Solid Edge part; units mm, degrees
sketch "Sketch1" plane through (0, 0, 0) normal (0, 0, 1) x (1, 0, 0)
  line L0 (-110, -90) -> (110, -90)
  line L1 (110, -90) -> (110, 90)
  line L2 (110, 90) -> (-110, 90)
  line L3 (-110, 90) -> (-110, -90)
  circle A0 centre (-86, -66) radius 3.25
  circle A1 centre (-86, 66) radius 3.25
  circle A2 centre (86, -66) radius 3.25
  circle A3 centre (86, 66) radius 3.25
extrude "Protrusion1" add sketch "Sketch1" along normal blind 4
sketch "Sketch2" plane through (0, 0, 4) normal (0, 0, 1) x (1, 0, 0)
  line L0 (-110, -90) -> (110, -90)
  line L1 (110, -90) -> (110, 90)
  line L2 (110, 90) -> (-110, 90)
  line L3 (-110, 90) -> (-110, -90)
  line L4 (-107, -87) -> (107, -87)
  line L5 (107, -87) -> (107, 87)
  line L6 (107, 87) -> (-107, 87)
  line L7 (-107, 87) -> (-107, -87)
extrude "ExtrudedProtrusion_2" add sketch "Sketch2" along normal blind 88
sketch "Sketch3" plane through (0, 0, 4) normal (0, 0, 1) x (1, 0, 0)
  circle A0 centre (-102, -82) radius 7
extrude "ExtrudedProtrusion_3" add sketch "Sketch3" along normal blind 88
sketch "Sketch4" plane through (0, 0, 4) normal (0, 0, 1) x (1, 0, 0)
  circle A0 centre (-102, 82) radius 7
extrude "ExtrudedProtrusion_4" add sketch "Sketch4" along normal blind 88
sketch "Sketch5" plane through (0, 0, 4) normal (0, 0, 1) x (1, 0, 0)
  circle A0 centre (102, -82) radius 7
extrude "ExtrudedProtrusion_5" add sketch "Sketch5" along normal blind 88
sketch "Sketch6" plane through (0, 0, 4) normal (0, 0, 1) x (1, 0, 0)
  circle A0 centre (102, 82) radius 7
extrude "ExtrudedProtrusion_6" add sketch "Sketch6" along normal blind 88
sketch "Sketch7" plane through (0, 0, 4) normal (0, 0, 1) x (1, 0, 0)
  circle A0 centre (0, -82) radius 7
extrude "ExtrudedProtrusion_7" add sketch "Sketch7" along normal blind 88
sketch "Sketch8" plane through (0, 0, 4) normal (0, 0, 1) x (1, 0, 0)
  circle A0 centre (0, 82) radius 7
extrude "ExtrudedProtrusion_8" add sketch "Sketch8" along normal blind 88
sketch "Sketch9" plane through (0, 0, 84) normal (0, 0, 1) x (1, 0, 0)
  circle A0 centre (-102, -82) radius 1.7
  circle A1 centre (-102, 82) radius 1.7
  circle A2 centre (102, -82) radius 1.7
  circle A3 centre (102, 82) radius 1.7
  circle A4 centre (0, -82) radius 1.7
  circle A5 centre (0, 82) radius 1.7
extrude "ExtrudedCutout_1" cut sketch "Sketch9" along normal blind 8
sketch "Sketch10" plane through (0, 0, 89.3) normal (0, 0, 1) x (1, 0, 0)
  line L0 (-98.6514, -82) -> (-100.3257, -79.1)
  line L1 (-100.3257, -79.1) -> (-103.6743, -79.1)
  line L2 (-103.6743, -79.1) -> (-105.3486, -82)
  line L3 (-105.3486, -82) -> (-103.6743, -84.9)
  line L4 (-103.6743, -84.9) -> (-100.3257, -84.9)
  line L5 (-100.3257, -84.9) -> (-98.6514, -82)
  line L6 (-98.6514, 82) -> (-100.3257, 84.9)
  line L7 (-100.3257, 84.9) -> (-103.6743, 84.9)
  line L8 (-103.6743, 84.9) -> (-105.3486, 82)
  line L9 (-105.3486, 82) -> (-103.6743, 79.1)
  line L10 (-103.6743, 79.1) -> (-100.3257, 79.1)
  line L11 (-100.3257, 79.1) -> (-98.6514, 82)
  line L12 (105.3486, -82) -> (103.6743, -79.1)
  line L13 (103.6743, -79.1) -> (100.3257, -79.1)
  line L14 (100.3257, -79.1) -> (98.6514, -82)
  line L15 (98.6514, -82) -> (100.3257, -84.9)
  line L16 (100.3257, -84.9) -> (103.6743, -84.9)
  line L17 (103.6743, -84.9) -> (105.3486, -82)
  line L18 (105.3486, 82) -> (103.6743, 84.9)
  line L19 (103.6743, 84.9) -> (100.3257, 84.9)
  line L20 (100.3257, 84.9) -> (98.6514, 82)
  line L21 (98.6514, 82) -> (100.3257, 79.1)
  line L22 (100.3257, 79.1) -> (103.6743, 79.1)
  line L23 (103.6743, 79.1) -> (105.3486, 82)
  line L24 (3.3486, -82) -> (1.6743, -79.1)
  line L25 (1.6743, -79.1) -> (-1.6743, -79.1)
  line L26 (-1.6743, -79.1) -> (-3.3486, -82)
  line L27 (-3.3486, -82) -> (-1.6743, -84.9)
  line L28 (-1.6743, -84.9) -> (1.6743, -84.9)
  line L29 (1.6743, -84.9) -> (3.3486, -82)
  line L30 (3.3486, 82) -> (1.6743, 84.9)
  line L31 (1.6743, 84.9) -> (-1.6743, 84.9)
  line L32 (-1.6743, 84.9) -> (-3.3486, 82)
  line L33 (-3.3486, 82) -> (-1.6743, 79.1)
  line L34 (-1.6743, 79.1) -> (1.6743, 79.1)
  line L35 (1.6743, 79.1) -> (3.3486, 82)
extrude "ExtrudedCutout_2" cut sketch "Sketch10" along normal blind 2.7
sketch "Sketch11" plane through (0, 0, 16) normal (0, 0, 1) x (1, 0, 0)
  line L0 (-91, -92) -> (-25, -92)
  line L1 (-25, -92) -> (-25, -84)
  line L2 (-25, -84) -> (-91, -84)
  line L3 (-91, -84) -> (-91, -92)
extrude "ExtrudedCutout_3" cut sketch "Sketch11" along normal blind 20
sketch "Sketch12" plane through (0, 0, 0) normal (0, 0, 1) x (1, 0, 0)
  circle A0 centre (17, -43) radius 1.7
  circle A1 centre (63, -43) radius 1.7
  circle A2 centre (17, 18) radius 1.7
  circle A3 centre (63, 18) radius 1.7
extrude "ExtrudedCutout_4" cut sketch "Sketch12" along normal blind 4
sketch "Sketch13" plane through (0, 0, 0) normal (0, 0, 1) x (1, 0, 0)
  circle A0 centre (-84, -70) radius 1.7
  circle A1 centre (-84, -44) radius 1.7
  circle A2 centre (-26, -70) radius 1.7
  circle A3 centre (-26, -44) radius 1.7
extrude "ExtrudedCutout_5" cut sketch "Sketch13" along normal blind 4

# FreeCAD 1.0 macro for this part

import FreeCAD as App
import Part
import Sketcher
from FreeCAD import Vector
Q = App.Units.Quantity


def add_polygon(sketch, points):
    """Adds a closed chain of lines whose ends are joined by coincident constraints."""
    first, n = sketch.GeometryCount, len(points)
    for a, b in zip(points, points[1:] + points[:1]):
        sketch.addGeometry(Part.LineSegment(App.Vector(*a, 0), App.Vector(*b, 0)), False)
    for i in range(n):
        sketch.addConstraint(Sketcher.Constraint("Coincident", first + i, 2, first + (i + 1) % n, 1))

doc = App.newDocument("Part")
body = doc.addObject("PartDesign::Body", "Body")

sketch1 = doc.addObject("Sketcher::SketchObject", "Sketch")
body.addObject(sketch1)
sketch1.AttachmentSupport = (doc.XY_Plane, [""])
sketch1.MapMode = "FlatFace"
add_polygon(sketch1, [(-110, 90), (-110, -90), (110, -90), (110, 90)])
sketch1.addGeometry(Part.Circle(Vector(-86, -66, 0), Vector(0, 0, 1), 3.2), False)
sketch1.addGeometry(Part.Circle(Vector(86, -66, 0), Vector(0, 0, 1), 3.2), False)
sketch1.addGeometry(Part.Circle(Vector(-86, 66, 0), Vector(0, 0, 1), 3.2), False)
sketch1.addGeometry(Part.Circle(Vector(86, 66, 0), Vector(0, 0, 1), 3.2), False)
sketch1.addConstraint(Sketcher.Constraint("Vertical", 0))
sketch1.addConstraint(Sketcher.Constraint("Horizontal", 1))
sketch1.addConstraint(Sketcher.Constraint("Vertical", 2))
sketch1.addConstraint(Sketcher.Constraint("Horizontal", 3))
sketch1.addConstraint(Sketcher.Constraint("Equal", 4, 5))
sketch1.addConstraint(Sketcher.Constraint("Equal", 5, 6))
sketch1.addConstraint(Sketcher.Constraint("Equal", 6, 7))
sketch1.addConstraint(Sketcher.Constraint("Symmetric", 5, 3, 6, 3, -1, 1))
sketch1.addConstraint(Sketcher.Constraint("Symmetric", 4, 3, 7, 3, -1, 1))
sketch1.addConstraint(Sketcher.Constraint("Symmetric", 0, 2, 2, 2, -1, 1))
sketch1.addConstraint(Sketcher.Constraint("Symmetric", 4, 3, 5, 3, -2))
sketch1.addConstraint(Sketcher.Constraint("Diameter", 4, 6.5))
sketch1.addConstraint(Sketcher.Constraint("DistanceX", 1, 1, 1, 2, 220.0))
sketch1.addConstraint(Sketcher.Constraint("DistanceY", 0, 2, 0, 1, 180.0))
sketch1.addConstraint(Sketcher.Constraint("DistanceX", 4, 3, -1, 1, 86.0))
sketch1.addConstraint(Sketcher.Constraint("DistanceY", 4, 3, -1, 1, 66.0))
pad1 = doc.addObject("PartDesign::Pad", "Pad")
body.addObject(pad1)
pad1.Profile = sketch1
pad1.Length = 4

sketch2 = doc.addObject("Sketcher::SketchObject", "Sketch001")
body.addObject(sketch2)
sketch2.AttachmentSupport = (doc.XY_Plane, [""])
sketch2.MapMode = "FlatFace"
sketch2.AttachmentOffset = App.Placement(Vector(0, 0, 4), App.Rotation())
add_polygon(sketch2, [(-110, 90), (-110, -90), (110, -90), (110, 90)])
add_polygon(sketch2, [(107, -87), (-107, -87), (-107, 87), (107, 87)])
sketch2.addConstraint(Sketcher.Constraint("Vertical", 0))
sketch2.addConstraint(Sketcher.Constraint("Horizontal", 1))
sketch2.addConstraint(Sketcher.Constraint("Vertical", 2))
sketch2.addConstraint(Sketcher.Constraint("Horizontal", 3))
sketch2.addConstraint(Sketcher.Constraint("Horizontal", 4))
sketch2.addConstraint(Sketcher.Constraint("Vertical", 5))
sketch2.addConstraint(Sketcher.Constraint("Horizontal", 6))
sketch2.addConstraint(Sketcher.Constraint("Vertical", 7))
sketch2.addConstraint(Sketcher.Constraint("Symmetric", 0, 2, 2, 2, -1, 1))
sketch2.addConstraint(Sketcher.Constraint("Symmetric", 4, 2, 6, 2, -1, 1))
sketch2.addConstraint(Sketcher.Constraint("DistanceX", 1, 1, 1, 2, 220.0))
sketch2.addConstraint(Sketcher.Constraint("DistanceX", 4, 2, 4, 1, 214.0))
sketch2.addConstraint(Sketcher.Constraint("DistanceY", 0, 2, 0, 1, 180.0))
sketch2.addConstraint(Sketcher.Constraint("DistanceY", 5, 1, 5, 2, 174.0))
pad2 = doc.addObject("PartDesign::Pad", "Pad001")
body.addObject(pad2)
pad2.Profile = sketch2
pad2.Length = 88

sketch3 = doc.addObject("Sketcher::SketchObject", "Sketch002")
body.addObject(sketch3)
sketch3.AttachmentSupport = (doc.XY_Plane, [""])
sketch3.MapMode = "FlatFace"
sketch3.AttachmentOffset = App.Placement(Vector(0, 0, 4), App.Rotation())
sketch3.addGeometry(Part.Circle(Vector(-102, -82, 0), Vector(0, 0, 1), 7), False)
sketch3.addConstraint(Sketcher.Constraint("Diameter", 0, 14.0))
sketch3.addConstraint(Sketcher.Constraint("DistanceX", 0, 3, -1, 1, 102.0))
sketch3.addConstraint(Sketcher.Constraint("DistanceY", 0, 3, -1, 1, 82.0))
pad3 = doc.addObject("PartDesign::Pad", "Pad002")
body.addObject(pad3)
pad3.Profile = sketch3
pad3.Length = 88

sketch4 = doc.addObject("Sketcher::SketchObject", "Sketch003")
body.addObject(sketch4)
sketch4.AttachmentSupport = (doc.XY_Plane, [""])
sketch4.MapMode = "FlatFace"
sketch4.AttachmentOffset = App.Placement(Vector(0, 0, 4), App.Rotation())
sketch4.addGeometry(Part.Circle(Vector(-102, 82, 0), Vector(0, 0, 1), 7), False)
sketch4.addConstraint(Sketcher.Constraint("Diameter", 0, 14.0))
sketch4.addConstraint(Sketcher.Constraint("DistanceX", 0, 3, -1, 1, 102.0))
sketch4.addConstraint(Sketcher.Constraint("DistanceY", -1, 1, 0, 3, 82.0))
pad4 = doc.addObject("PartDesign::Pad", "Pad003")
body.addObject(pad4)
pad4.Profile = sketch4
pad4.Length = 88

sketch5 = doc.addObject("Sketcher::SketchObject", "Sketch004")
body.addObject(sketch5)
sketch5.AttachmentSupport = (doc.XY_Plane, [""])
sketch5.MapMode = "FlatFace"
sketch5.AttachmentOffset = App.Placement(Vector(0, 0, 4), App.Rotation())
sketch5.addGeometry(Part.Circle(Vector(102, -82, 0), Vector(0, 0, 1), 7), False)
sketch5.addConstraint(Sketcher.Constraint("Diameter", 0, 14.0))
sketch5.addConstraint(Sketcher.Constraint("DistanceX", -1, 1, 0, 3, 102.0))
sketch5.addConstraint(Sketcher.Constraint("DistanceY", 0, 3, -1, 1, 82.0))
pad5 = doc.addObject("PartDesign::Pad", "Pad004")
body.addObject(pad5)
pad5.Profile = sketch5
pad5.Length = 88

sketch6 = doc.addObject("Sketcher::SketchObject", "Sketch005")
body.addObject(sketch6)
sketch6.AttachmentSupport = (doc.XY_Plane, [""])
sketch6.MapMode = "FlatFace"
sketch6.AttachmentOffset = App.Placement(Vector(0, 0, 4), App.Rotation())
sketch6.addGeometry(Part.Circle(Vector(102, 82, 0), Vector(0, 0, 1), 7), False)
sketch6.addConstraint(Sketcher.Constraint("Diameter", 0, 14.0))
sketch6.addConstraint(Sketcher.Constraint("DistanceX", -1, 1, 0, 3, 102.0))
sketch6.addConstraint(Sketcher.Constraint("DistanceY", -1, 1, 0, 3, 82.0))
pad6 = doc.addObject("PartDesign::Pad", "Pad005")
body.addObject(pad6)
pad6.Profile = sketch6
pad6.Length = 88

sketch7 = doc.addObject("Sketcher::SketchObject", "Sketch006")
body.addObject(sketch7)
sketch7.AttachmentSupport = (doc.XY_Plane, [""])
sketch7.MapMode = "FlatFace"
sketch7.AttachmentOffset = App.Placement(Vector(0, 0, 4), App.Rotation())
sketch7.addGeometry(Part.Circle(Vector(0, -82, 0), Vector(0, 0, 1), 7), False)
sketch7.addConstraint(Sketcher.Constraint("PointOnObject", 0, 3, -2))
sketch7.addConstraint(Sketcher.Constraint("Diameter", 0, 14.0))
sketch7.addConstraint(Sketcher.Constraint("DistanceY", 0, 3, -1, 1, 82.0))
pad7 = doc.addObject("PartDesign::Pad", "Pad006")
body.addObject(pad7)
pad7.Profile = sketch7
pad7.Length = 88

sketch8 = doc.addObject("Sketcher::SketchObject", "Sketch007")
body.addObject(sketch8)
sketch8.AttachmentSupport = (doc.XY_Plane, [""])
sketch8.MapMode = "FlatFace"
sketch8.AttachmentOffset = App.Placement(Vector(0, 0, 4), App.Rotation())
sketch8.addGeometry(Part.Circle(Vector(0, 82, 0), Vector(0, 0, 1), 7), False)
sketch8.addConstraint(Sketcher.Constraint("PointOnObject", 0, 3, -2))
sketch8.addConstraint(Sketcher.Constraint("Diameter", 0, 14.0))
sketch8.addConstraint(Sketcher.Constraint("DistanceY", -1, 1, 0, 3, 82.0))
pad8 = doc.addObject("PartDesign::Pad", "Pad007")
body.addObject(pad8)
pad8.Profile = sketch8
pad8.Length = 88

sketch9 = doc.addObject("Sketcher::SketchObject", "Sketch008")
body.addObject(sketch9)
sketch9.AttachmentSupport = (doc.XY_Plane, [""])
sketch9.MapMode = "FlatFace"
sketch9.AttachmentOffset = App.Placement(Vector(0, 0, 84), App.Rotation())
sketch9.addGeometry(Part.Circle(Vector(-102, -82, 0), Vector(0, 0, 1), 1.7), False)
sketch9.addGeometry(Part.Circle(Vector(-102, 82, 0), Vector(0, 0, 1), 1.7), False)
sketch9.addGeometry(Part.Circle(Vector(102, -82, 0), Vector(0, 0, 1), 1.7), False)
sketch9.addGeometry(Part.Circle(Vector(102, 82, 0), Vector(0, 0, 1), 1.7), False)
sketch9.addGeometry(Part.Circle(Vector(0, -82, 0), Vector(0, 0, 1), 1.7), False)
sketch9.addGeometry(Part.Circle(Vector(0, 82, 0), Vector(0, 0, 1), 1.7), False)
sketch9.addConstraint(Sketcher.Constraint("Equal", 0, 1))
sketch9.addConstraint(Sketcher.Constraint("Equal", 1, 2))
sketch9.addConstraint(Sketcher.Constraint("Equal", 2, 3))
sketch9.addConstraint(Sketcher.Constraint("Equal", 3, 4))
sketch9.addConstraint(Sketcher.Constraint("Equal", 4, 5))
sketch9.addConstraint(Sketcher.Constraint("Symmetric", 1, 3, 2, 3, -1, 1))
sketch9.addConstraint(Sketcher.Constraint("Symmetric", 0, 3, 3, 3, -1, 1))
sketch9.addConstraint(Sketcher.Constraint("Symmetric", 4, 3, 5, 3, -1, 1))
sketch9.addConstraint(Sketcher.Constraint("Symmetric", 0, 3, 2, 3, -2))
sketch9.addConstraint(Sketcher.Constraint("PointOnObject", 4, 3, -2))
sketch9.addConstraint(Sketcher.Constraint("Horizontal", 2, 3, 4, 3))
sketch9.addConstraint(Sketcher.Constraint("Diameter", 0, 3.4))
sketch9.addConstraint(Sketcher.Constraint("DistanceX", 0, 3, -1, 1, 102.0))
sketch9.addConstraint(Sketcher.Constraint("DistanceY", 0, 3, -1, 1, 82.0))
pocket1 = doc.addObject("PartDesign::Pocket", "Pocket")
body.addObject(pocket1)
pocket1.Profile = sketch9
pocket1.Length = 8
pocket1.Reversed = True

sketch10 = doc.addObject("Sketcher::SketchObject", "Sketch009")
body.addObject(sketch10)
sketch10.AttachmentSupport = (doc.XY_Plane, [""])
sketch10.MapMode = "FlatFace"
sketch10.AttachmentOffset = App.Placement(Vector(0, 0, 89.3), App.Rotation())
add_polygon(sketch10, [(-100.3, -84.9), (-98.7, -82), (-100.3, -79.1), (-103.7, -79.1), (-105.3, -82), (-103.7, -84.9)])
add_polygon(sketch10, [(-100.3, 79.1), (-98.7, 82), (-100.3, 84.9), (-103.7, 84.9), (-105.3, 82), (-103.7, 79.1)])
add_polygon(sketch10, [(103.7, -84.9), (105.3, -82), (103.7, -79.1), (100.3, -79.1), (98.7, -82), (100.3, -84.9)])
add_polygon(sketch10, [(103.7, 79.1), (105.3, 82), (103.7, 84.9), (100.3, 84.9), (98.7, 82), (100.3, 79.1)])
add_polygon(sketch10, [(1.7, -84.9), (3.3, -82), (1.7, -79.1), (-1.7, -79.1), (-3.3, -82), (-1.7, -84.9)])
add_polygon(sketch10, [(1.7, 79.1), (3.3, 82), (1.7, 84.9), (-1.7, 84.9), (-3.3, 82), (-1.7, 79.1)])
sketch10.addConstraint(Sketcher.Constraint("Horizontal", 2))
sketch10.addConstraint(Sketcher.Constraint("Horizontal", 5))
sketch10.addConstraint(Sketcher.Constraint("Horizontal", 8))
sketch10.addConstraint(Sketcher.Constraint("Horizontal", 11))
sketch10.addConstraint(Sketcher.Constraint("Horizontal", 14))
sketch10.addConstraint(Sketcher.Constraint("Horizontal", 17))
sketch10.addConstraint(Sketcher.Constraint("Horizontal", 20))
sketch10.addConstraint(Sketcher.Constraint("Horizontal", 23))
sketch10.addConstraint(Sketcher.Constraint("Horizontal", 26))
sketch10.addConstraint(Sketcher.Constraint("Horizontal", 29))
sketch10.addConstraint(Sketcher.Constraint("Horizontal", 32))
sketch10.addConstraint(Sketcher.Constraint("Horizontal", 35))
sketch10.addConstraint(Sketcher.Constraint("Symmetric", 9, 2, 12, 2, -1, 1))
sketch10.addConstraint(Sketcher.Constraint("Symmetric", 10, 2, 13, 2, -1, 1))
sketch10.addConstraint(Sketcher.Constraint("Symmetric", 6, 2, 15, 2, -1, 1))
sketch10.addConstraint(Sketcher.Constraint("Symmetric", 7, 2, 16, 2, -1, 1))
sketch10.addConstraint(Sketcher.Constraint("Symmetric", 3, 2, 18, 2, -1, 1))
sketch10.addConstraint(Sketcher.Constraint("Symmetric", 4, 2, 19, 2, -1, 1))
sketch10.addConstraint(Sketcher.Constraint("Symmetric", 0, 2, 21, 2, -1, 1))
sketch10.addConstraint(Sketcher.Constraint("Symmetric", 1, 2, 22, 2, -1, 1))
sketch10.addConstraint(Sketcher.Constraint("Symmetric", 27, 2, 30, 2, -1, 1))
sketch10.addConstraint(Sketcher.Constraint("Symmetric", 28, 2, 31, 2, -1, 1))
sketch10.addConstraint(Sketcher.Constraint("Symmetric", 24, 2, 33, 2, -1, 1))
sketch10.addConstraint(Sketcher.Constraint("Symmetric", 25, 2, 34, 2, -1, 1))
sketch10.addConstraint(Sketcher.Constraint("Symmetric", 3, 2, 12, 2, -2))
sketch10.addConstraint(Sketcher.Constraint("Symmetric", 2, 2, 13, 2, -2))
sketch10.addConstraint(Sketcher.Constraint("Symmetric", 0, 2, 15, 2, -2))
sketch10.addConstraint(Sketcher.Constraint("Symmetric", 5, 2, 16, 2, -2))
sketch10.addConstraint(Sketcher.Constraint("Symmetric", 24, 2, 27, 2, -2))
sketch10.addConstraint(Sketcher.Constraint("Parallel", 0, 3))
sketch10.addConstraint(Sketcher.Constraint("Parallel", 1, 4))
sketch10.addConstraint(Sketcher.Constraint("Parallel", 3, 6))
sketch10.addConstraint(Sketcher.Constraint("Parallel", 4, 7))
sketch10.addConstraint(Sketcher.Constraint("Parallel", 6, 9))
sketch10.addConstraint(Sketcher.Constraint("Parallel", 9, 12))
sketch10.addConstraint(Sketcher.Constraint("Parallel", 12, 15))
sketch10.addConstraint(Sketcher.Constraint("Parallel", 15, 18))
sketch10.addConstraint(Sketcher.Constraint("Parallel", 18, 21))
sketch10.addConstraint(Sketcher.Constraint("Parallel", 21, 24))
sketch10.addConstraint(Sketcher.Constraint("Parallel", 22, 25))
sketch10.addConstraint(Sketcher.Constraint("Parallel", 24, 27))
sketch10.addConstraint(Sketcher.Constraint("Parallel", 25, 28))
sketch10.addConstraint(Sketcher.Constraint("Parallel", 27, 30))
sketch10.addConstraint(Sketcher.Constraint("Parallel", 30, 33))
sketch10.addConstraint(Sketcher.Constraint("Horizontal", 0, 2, 3, 2))
sketch10.addConstraint(Sketcher.Constraint("Horizontal", 15, 2, 24, 2))
sketch10.addConstraint(Sketcher.Constraint("Horizontal", 14, 2, 25, 2))
sketch10.addConstraint(Sketcher.Constraint("Horizontal", 17, 2, 28, 2))
sketch10.addConstraint(Sketcher.Constraint("Vertical", 2, 2, 4, 2))
sketch10.addConstraint(Sketcher.Constraint("Equal", 23, 26))
sketch10.addConstraint(Sketcher.Constraint("Angle", 0, Q("60.0002 deg")))
sketch10.addConstraint(Sketcher.Constraint("DistanceY", 0, 2, -1, 1, 82.0))
sketch10.addConstraint(Sketcher.Constraint("DistanceX", 0, 2, 12, 2, 204.0))
sketch10.addConstraint(Sketcher.Constraint("DistanceY", 1, 2, -1, 1, 79.1))
sketch10.addConstraint(Sketcher.Constraint("DistanceX", 2, 2, 2, 1, 3.3486))
pocket2 = doc.addObject("PartDesign::Pocket", "Pocket001")
body.addObject(pocket2)
pocket2.Profile = sketch10
pocket2.Length = 2.7
pocket2.Reversed = True

sketch11 = doc.addObject("Sketcher::SketchObject", "Sketch010")
body.addObject(sketch11)
sketch11.AttachmentSupport = (doc.XY_Plane, [""])
sketch11.MapMode = "FlatFace"
sketch11.AttachmentOffset = App.Placement(Vector(0, 0, 16), App.Rotation())
add_polygon(sketch11, [(-91, -84), (-91, -92), (-25, -92), (-25, -84)])
sketch11.addConstraint(Sketcher.Constraint("Vertical", 0))
sketch11.addConstraint(Sketcher.Constraint("Horizontal", 1))
sketch11.addConstraint(Sketcher.Constraint("Vertical", 2))
sketch11.addConstraint(Sketcher.Constraint("Horizontal", 3))
sketch11.addConstraint(Sketcher.Constraint("DistanceX", 1, 1, 1, 2, 66.0))
sketch11.addConstraint(Sketcher.Constraint("DistanceY", 0, 2, 0, 1, 8.0))
sketch11.addConstraint(Sketcher.Constraint("DistanceX", 0, 2, -1, 1, 91.0))
sketch11.addConstraint(Sketcher.Constraint("DistanceY", 0, 2, -1, 1, 92.0))
pocket3 = doc.addObject("PartDesign::Pocket", "Pocket002")
body.addObject(pocket3)
pocket3.Profile = sketch11
pocket3.Length = 20
pocket3.Reversed = True

sketch12 = doc.addObject("Sketcher::SketchObject", "Sketch011")
body.addObject(sketch12)
sketch12.AttachmentSupport = (doc.XY_Plane, [""])
sketch12.MapMode = "FlatFace"
sketch12.addGeometry(Part.Circle(Vector(17, -43, 0), Vector(0, 0, 1), 1.7), False)
sketch12.addGeometry(Part.Circle(Vector(63, -43, 0), Vector(0, 0, 1), 1.7), False)
sketch12.addGeometry(Part.Circle(Vector(17, 18, 0), Vector(0, 0, 1), 1.7), False)
sketch12.addGeometry(Part.Circle(Vector(63, 18, 0), Vector(0, 0, 1), 1.7), False)
sketch12.addConstraint(Sketcher.Constraint("Equal", 0, 1))
sketch12.addConstraint(Sketcher.Constraint("Equal", 1, 2))
sketch12.addConstraint(Sketcher.Constraint("Equal", 2, 3))
sketch12.addConstraint(Sketcher.Constraint("Horizontal", 0, 3, 1, 3))
sketch12.addConstraint(Sketcher.Constraint("Horizontal", 2, 3, 3, 3))
sketch12.addConstraint(Sketcher.Constraint("Vertical", 0, 3, 2, 3))
sketch12.addConstraint(Sketcher.Constraint("Vertical", 1, 3, 3, 3))
sketch12.addConstraint(Sketcher.Constraint("Diameter", 0, 3.4))
sketch12.addConstraint(Sketcher.Constraint("DistanceX", -1, 1, 0, 3, 17.0))
sketch12.addConstraint(Sketcher.Constraint("DistanceY", 0, 3, -1, 1, 43.0))
sketch12.addConstraint(Sketcher.Constraint("DistanceX", -1, 1, 1, 3, 63.0))
sketch12.addConstraint(Sketcher.Constraint("DistanceY", -1, 1, 2, 3, 18.0))
pocket4 = doc.addObject("PartDesign::Pocket", "Pocket003")
body.addObject(pocket4)
pocket4.Profile = sketch12
pocket4.Length = 4
pocket4.Reversed = True

sketch13 = doc.addObject("Sketcher::SketchObject", "Sketch012")
body.addObject(sketch13)
sketch13.AttachmentSupport = (doc.XY_Plane, [""])
sketch13.MapMode = "FlatFace"
sketch13.addGeometry(Part.Circle(Vector(-84, -70, 0), Vector(0, 0, 1), 1.7), False)
sketch13.addGeometry(Part.Circle(Vector(-84, -44, 0), Vector(0, 0, 1), 1.7), False)
sketch13.addGeometry(Part.Circle(Vector(-26, -70, 0), Vector(0, 0, 1), 1.7), False)
sketch13.addGeometry(Part.Circle(Vector(-26, -44, 0), Vector(0, 0, 1), 1.7), False)
sketch13.addConstraint(Sketcher.Constraint("Equal", 0, 1))
sketch13.addConstraint(Sketcher.Constraint("Equal", 1, 2))
sketch13.addConstraint(Sketcher.Constraint("Equal", 2, 3))
sketch13.addConstraint(Sketcher.Constraint("Horizontal", 0, 3, 2, 3))
sketch13.addConstraint(Sketcher.Constraint("Horizontal", 1, 3, 3, 3))
sketch13.addConstraint(Sketcher.Constraint("Vertical", 0, 3, 1, 3))
sketch13.addConstraint(Sketcher.Constraint("Vertical", 2, 3, 3, 3))
sketch13.addConstraint(Sketcher.Constraint("Diameter", 0, 3.4))
sketch13.addConstraint(Sketcher.Constraint("DistanceX", 0, 3, -1, 1, 84.0))
sketch13.addConstraint(Sketcher.Constraint("DistanceY", 0, 3, -1, 1, 70.0))
sketch13.addConstraint(Sketcher.Constraint("DistanceY", 1, 3, -1, 1, 44.0))
sketch13.addConstraint(Sketcher.Constraint("DistanceX", 2, 3, -1, 1, 26.0))
pocket5 = doc.addObject("PartDesign::Pocket", "Pocket004")
body.addObject(pocket5)
pocket5.Profile = sketch13
pocket5.Length = 4
pocket5.Reversed = True

doc.recompute()
